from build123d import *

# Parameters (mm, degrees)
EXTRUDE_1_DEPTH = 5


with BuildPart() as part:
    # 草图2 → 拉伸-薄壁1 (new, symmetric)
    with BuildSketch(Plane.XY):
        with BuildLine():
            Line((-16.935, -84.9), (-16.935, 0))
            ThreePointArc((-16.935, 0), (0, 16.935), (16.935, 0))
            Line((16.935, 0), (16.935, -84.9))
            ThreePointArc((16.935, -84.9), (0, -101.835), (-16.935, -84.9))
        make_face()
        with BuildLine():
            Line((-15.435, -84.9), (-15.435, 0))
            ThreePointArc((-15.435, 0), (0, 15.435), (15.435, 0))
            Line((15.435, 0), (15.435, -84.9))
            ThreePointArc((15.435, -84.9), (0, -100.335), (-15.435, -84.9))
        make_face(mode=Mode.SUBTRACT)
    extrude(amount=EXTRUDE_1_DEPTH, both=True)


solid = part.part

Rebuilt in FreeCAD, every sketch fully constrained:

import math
import FreeCAD as App
import Part
import Sketcher
from FreeCAD import Vector

doc = App.newDocument("Part")
body = doc.addObject("PartDesign::Body", "Body")

# Sketch on XY plane
sketch1 = doc.addObject("Sketcher::SketchObject", "Sketch")
body.addObject(sketch1)
sketch1.AttachmentSupport = (doc.XY_Plane, [""])
sketch1.MapMode = "FlatFace"
sketch1.addGeometry([
    Part.LineSegment(Vector(-17, 0, 0), Vector(-17, -85, 0)),  # 0
    Part.ArcOfCircle(Part.Circle(Vector(0, -85, 0), Vector(0, 0, 1), 17), math.radians(180), math.radians(360)),  # 1
    Part.LineSegment(Vector(17, -85, 0), Vector(17, 0, 0)),  # 2
    Part.ArcOfCircle(Part.Circle(Vector(0, 0, 0), Vector(0, 0, 1), 17), math.radians(0), math.radians(180)),  # 3
    Part.LineSegment(Vector(-15, -85, 0), Vector(-15, 0, 0)),  # 4
    Part.ArcOfCircle(Part.Circle(Vector(0, 0, 0), Vector(0, 0, 1), 15), math.radians(0), math.radians(180)),  # 5
    Part.LineSegment(Vector(15, 0, 0), Vector(15, -85, 0)),  # 6
    Part.ArcOfCircle(Part.Circle(Vector(0, -85, 0), Vector(0, 0, 1), 15), math.radians(180), math.radians(360)),  # 7
], False)
sketch1.addConstraint([
    Sketcher.Constraint("Tangent", 0, 2, 1, 1),
    Sketcher.Constraint("Tangent", 1, 2, 2, 1),
    Sketcher.Constraint("Tangent", 2, 2, 3, 1),
    Sketcher.Constraint("Tangent", 3, 2, 0, 1),
    Sketcher.Constraint("Tangent", 4, 2, 5, 2),
    Sketcher.Constraint("Tangent", 5, 1, 6, 1),
    Sketcher.Constraint("Tangent", 6, 2, 7, 2),
    Sketcher.Constraint("Tangent", 7, 1, 4, 1),
    Sketcher.Constraint("Vertical", 0),
    Sketcher.Constraint("Vertical", 2),
    Sketcher.Constraint("Vertical", 4),
    Sketcher.Constraint("Vertical", 6),
    Sketcher.Constraint("Coincident", 3, 3, -1, 1),
    Sketcher.Constraint("Coincident", 5, 3, -1, 1),
    Sketcher.Constraint("Horizontal", 7, 3, 0, 2),
    Sketcher.Constraint("DistanceY", 0, 2, 0, 1, 84.9),
    Sketcher.Constraint("Radius", 1, 16.935),
    Sketcher.Constraint("Radius", 5, 15.435),
])
pad1 = doc.addObject("PartDesign::Pad", "Pad")
body.addObject(pad1)
pad1.Profile = sketch1
pad1.Length = 10
pad1.Midplane = True

doc.recompute()
